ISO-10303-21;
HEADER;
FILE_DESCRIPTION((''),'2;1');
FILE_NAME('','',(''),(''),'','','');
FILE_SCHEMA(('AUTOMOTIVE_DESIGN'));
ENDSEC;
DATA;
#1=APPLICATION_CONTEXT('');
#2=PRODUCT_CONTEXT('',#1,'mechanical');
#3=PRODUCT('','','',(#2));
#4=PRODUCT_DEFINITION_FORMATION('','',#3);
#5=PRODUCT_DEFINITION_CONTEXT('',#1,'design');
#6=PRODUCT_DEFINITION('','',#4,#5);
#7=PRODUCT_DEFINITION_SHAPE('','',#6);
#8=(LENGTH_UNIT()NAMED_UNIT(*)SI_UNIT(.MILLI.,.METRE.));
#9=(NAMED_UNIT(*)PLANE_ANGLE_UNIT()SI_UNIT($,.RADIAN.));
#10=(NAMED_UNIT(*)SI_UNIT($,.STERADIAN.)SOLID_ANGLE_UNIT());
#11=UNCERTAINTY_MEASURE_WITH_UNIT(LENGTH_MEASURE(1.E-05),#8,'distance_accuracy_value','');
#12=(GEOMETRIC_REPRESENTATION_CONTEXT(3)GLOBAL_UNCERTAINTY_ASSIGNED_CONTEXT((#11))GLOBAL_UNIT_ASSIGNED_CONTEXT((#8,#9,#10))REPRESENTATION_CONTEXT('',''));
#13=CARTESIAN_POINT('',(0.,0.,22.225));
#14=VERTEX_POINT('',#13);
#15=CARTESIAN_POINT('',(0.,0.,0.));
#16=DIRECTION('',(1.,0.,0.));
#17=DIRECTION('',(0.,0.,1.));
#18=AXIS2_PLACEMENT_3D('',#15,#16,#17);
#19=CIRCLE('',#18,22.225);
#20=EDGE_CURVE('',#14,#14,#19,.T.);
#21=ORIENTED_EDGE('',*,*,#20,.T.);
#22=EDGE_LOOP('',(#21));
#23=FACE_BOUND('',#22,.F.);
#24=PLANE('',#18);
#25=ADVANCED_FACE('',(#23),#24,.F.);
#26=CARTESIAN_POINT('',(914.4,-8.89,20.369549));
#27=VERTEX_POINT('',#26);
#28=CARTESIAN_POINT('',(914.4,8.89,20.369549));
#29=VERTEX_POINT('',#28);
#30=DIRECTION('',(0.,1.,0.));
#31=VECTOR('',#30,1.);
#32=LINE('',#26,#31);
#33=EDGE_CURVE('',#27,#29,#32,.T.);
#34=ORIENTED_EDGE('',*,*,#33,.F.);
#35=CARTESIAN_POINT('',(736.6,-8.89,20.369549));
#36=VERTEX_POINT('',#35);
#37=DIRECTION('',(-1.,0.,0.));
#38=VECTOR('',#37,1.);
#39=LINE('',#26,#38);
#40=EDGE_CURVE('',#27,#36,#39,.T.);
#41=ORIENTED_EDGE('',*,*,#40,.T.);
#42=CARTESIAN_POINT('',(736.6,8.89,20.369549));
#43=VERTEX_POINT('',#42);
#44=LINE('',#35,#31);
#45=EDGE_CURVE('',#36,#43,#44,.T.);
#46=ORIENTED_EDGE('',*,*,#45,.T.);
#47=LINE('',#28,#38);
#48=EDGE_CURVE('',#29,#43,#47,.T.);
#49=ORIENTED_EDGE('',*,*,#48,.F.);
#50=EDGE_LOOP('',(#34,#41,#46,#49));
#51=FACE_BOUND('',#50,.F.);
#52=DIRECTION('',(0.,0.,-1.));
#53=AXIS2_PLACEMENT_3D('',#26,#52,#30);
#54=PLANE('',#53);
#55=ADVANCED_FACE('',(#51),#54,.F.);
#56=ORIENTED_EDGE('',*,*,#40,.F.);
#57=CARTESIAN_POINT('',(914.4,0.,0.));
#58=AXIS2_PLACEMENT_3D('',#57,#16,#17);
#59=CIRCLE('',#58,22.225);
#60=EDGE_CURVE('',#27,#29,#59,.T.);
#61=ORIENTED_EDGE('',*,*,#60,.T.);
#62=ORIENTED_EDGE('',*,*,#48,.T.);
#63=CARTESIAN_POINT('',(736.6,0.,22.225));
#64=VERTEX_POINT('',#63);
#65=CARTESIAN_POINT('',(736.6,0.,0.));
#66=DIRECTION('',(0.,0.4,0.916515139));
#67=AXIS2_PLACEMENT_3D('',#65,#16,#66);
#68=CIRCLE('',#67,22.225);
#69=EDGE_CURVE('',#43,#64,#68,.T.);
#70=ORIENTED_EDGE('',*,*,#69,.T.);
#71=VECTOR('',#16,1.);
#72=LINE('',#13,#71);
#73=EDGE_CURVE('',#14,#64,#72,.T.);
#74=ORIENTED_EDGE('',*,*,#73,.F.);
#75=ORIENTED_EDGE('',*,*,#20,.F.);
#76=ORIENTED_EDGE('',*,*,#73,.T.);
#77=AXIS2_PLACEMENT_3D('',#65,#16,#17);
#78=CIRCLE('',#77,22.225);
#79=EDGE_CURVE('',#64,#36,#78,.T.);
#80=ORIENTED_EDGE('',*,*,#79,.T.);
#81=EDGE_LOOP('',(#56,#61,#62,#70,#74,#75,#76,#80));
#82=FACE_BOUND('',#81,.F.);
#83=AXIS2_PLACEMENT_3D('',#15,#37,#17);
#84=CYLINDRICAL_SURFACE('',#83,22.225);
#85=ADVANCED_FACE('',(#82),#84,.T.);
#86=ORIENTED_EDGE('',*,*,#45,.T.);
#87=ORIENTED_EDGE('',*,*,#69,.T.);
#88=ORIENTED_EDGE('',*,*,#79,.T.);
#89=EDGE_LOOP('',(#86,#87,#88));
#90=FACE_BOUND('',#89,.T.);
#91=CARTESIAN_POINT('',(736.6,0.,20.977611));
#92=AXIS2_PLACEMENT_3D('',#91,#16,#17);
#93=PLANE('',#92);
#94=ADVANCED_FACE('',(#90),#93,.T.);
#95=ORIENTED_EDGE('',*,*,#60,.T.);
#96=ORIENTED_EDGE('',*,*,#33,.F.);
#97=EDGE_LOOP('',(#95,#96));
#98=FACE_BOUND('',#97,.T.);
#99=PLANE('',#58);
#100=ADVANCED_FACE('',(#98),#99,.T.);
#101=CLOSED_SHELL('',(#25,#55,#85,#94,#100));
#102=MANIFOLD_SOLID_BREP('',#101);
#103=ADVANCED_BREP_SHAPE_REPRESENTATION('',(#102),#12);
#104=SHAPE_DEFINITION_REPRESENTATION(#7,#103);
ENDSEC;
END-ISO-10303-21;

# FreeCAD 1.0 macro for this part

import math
import FreeCAD as App
import Part
import Sketcher

V = App.Vector
Q = App.Units.Quantity

doc = App.newDocument("Part")
body = doc.addObject("PartDesign::Body", "Body")

sketch1 = body.newObject("Sketcher::SketchObject", "Sketch")
sketch1.AttachmentSupport = (doc.getObject("YZ_Plane"), [""])
sketch1.MapMode = "FlatFace"
sketch1.addGeometry(Part.Circle(V(0, 0, 0), V(0, 0, 1), 22.225), False)
sketch1.addConstraint(Sketcher.Constraint("Coincident", 0, 3, -1, 1))
sketch1.addConstraint(Sketcher.Constraint("Diameter", 0, Q("1.75 in")))
pad1 = body.newObject("PartDesign::Pad", "Pad")
pad1.Profile = sketch1
pad1.Length = Q("36 in")

sketch2 = body.newObject("Sketcher::SketchObject", "Sketch001")
sketch2.AttachmentSupport = (doc.getObject("YZ_Plane"), [""])
sketch2.MapMode = "FlatFace"
sketch2.AttachmentOffset = App.Placement(V(0, 0, 36 * 25.4), App.Rotation())
sketch2.addGeometry(Part.LineSegment(V(20.369549, 8.89, 0), V(20.369549, -8.89, 0)), False)
sketch2.addGeometry(Part.ArcOfCircle(Part.Circle(V(0, 0, 0), V(0, 0, 1), 22.225), math.radians(-23.578178), math.radians(0)), False)
sketch2.addGeometry(Part.ArcOfCircle(Part.Circle(V(0, 0, 0), V(0, 0, 1), 22.225), math.radians(0), math.radians(23.578178)), False)
sketch2.addConstraint(Sketcher.Constraint("Coincident", 0, 2, 1, 1))
sketch2.addConstraint(Sketcher.Constraint("Tangent", 1, 2, 2, 1))
sketch2.addConstraint(Sketcher.Constraint("Coincident", 2, 2, 0, 1))
sketch2.addConstraint(Sketcher.Constraint("Vertical", 0))
sketch2.addConstraint(Sketcher.Constraint("Coincident", 1, 3, -1, 1))
sketch2.addConstraint(Sketcher.Constraint("Equal", 1, 2))
sketch2.addConstraint(Sketcher.Constraint("PointOnObject", 1, 2, -1))
sketch2.addConstraint(Sketcher.Constraint("DistanceY", 0, 2, 0, 1, Q("0.7 in")))
sketch2.addConstraint(Sketcher.Constraint("Radius", 1, Q("0.875 in")))
pocket1 = body.newObject("PartDesign::Pocket", "Pocket")
pocket1.Profile = sketch2
pocket1.Length = Q("7 in")
body2 = doc.addObject("PartDesign::Body", "Body001")
doc.recompute()

body.Placement = App.Placement(V(0, 0, 0), App.Rotation(V(1, 0, 0), 90))
boolean = body2.newObject("PartDesign::Boolean", "Boolean")
boolean.Type = "Fuse"
boolean.addObjects([body])

doc.recompute()
